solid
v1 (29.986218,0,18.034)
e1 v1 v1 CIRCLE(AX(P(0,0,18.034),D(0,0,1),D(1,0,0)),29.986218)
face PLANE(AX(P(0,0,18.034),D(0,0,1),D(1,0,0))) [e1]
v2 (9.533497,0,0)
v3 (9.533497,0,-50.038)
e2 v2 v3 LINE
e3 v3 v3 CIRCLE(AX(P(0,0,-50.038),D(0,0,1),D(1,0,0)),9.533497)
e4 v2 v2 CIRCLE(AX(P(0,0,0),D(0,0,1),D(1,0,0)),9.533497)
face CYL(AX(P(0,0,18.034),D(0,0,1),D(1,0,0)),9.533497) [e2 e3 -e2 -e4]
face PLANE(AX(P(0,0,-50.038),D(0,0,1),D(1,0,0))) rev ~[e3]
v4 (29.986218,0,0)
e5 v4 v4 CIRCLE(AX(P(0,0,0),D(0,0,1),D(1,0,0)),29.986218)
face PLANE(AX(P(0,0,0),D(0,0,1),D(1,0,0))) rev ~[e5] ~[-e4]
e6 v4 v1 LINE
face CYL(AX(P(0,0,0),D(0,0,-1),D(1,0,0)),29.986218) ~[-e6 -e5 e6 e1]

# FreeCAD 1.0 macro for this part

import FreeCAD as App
import Part
import Sketcher

V = App.Vector
Q = App.Units.Quantity

doc = App.newDocument("Part")
body = doc.addObject("PartDesign::Body", "Body")

sketch1 = body.newObject("Sketcher::SketchObject", "Sketch")
sketch1.AttachmentSupport = (doc.getObject("XY_Plane"), [""])
sketch1.MapMode = "FlatFace"
sketch1.addGeometry(Part.Circle(V(0, 0, 0), V(0, 0, 1), 30), False)
sketch1.addConstraint([
    Sketcher.Constraint("Coincident", 0, 3, -1, 1),
    Sketcher.Constraint("Diameter", 0, 59.972436),
])
pad1 = body.newObject("PartDesign::Pad", "Pad")
pad1.Profile = sketch1
pad1.Length = Q("0.71 in")

sketch2 = body.newObject("Sketcher::SketchObject", "Sketch001")
sketch2.AttachmentSupport = (doc.getObject("XY_Plane"), [""])
sketch2.MapMode = "FlatFace"
sketch2.AttachmentOffset = App.Placement(V(0, 0, 0.71 * 25.4), App.Rotation())
sketch2.addGeometry(Part.Circle(V(0, 0, 0), V(0, 0, 1), 10), False)
sketch2.addConstraint([
    Sketcher.Constraint("Coincident", 0, 3, -1, 1),
    Sketcher.Constraint("Diameter", 0, 19.066994),
])
pad2 = body.newObject("PartDesign::Pad", "Pad001")
pad2.Profile = sketch2
pad2.Length = Q("2.68 in")
pad2.Reversed = True

doc.recompute()
